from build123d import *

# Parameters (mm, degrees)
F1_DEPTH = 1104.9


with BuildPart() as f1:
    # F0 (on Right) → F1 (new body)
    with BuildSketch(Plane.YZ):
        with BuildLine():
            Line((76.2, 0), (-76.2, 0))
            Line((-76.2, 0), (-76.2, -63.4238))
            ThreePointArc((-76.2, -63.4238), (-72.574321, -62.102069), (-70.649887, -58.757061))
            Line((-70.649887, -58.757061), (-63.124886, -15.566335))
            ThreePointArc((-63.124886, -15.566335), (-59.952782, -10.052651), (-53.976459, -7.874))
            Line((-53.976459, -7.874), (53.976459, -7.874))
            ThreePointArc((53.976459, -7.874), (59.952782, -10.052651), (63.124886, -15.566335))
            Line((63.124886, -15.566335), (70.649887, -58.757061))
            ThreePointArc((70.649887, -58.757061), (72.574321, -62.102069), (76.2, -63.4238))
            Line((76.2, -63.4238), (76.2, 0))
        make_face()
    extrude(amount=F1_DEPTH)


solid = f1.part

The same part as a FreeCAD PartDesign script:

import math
import FreeCAD as App
import Part
import Sketcher

V = App.Vector
Q = App.Units.Quantity

doc = App.newDocument("Part")
body = doc.addObject("PartDesign::Body", "Body")

# Sketch on YZ plane
sketch1 = body.newObject("Sketcher::SketchObject", "Sketch")
sketch1.AttachmentSupport = (doc.getObject("YZ_Plane"), [""])
sketch1.MapMode = "FlatFace"
sketch1.addGeometry(Part.LineSegment(V(76, 0, 0), V(-76, 0, 0)), False)
sketch1.addGeometry(Part.LineSegment(V(-76, 0, 0), V(-76, -63, 0)), False)
sketch1.addGeometry(Part.ArcOfCircle(Part.Circle(V(-76, -58, 0), V(0, 0, 1), 6), math.radians(-90), math.radians(-10)), False)
sketch1.addGeometry(Part.LineSegment(V(-71, -59, 0), V(-63, -16, 0)), False)
sketch1.addGeometry(Part.ArcOfCircle(Part.Circle(V(-54, -17, 0), V(0, 0, 1), 9), math.radians(90), math.radians(170)), False)
sketch1.addGeometry(Part.LineSegment(V(-54, -8, 0), V(54, -8, 0)), False)
sketch1.addGeometry(Part.ArcOfCircle(Part.Circle(V(54, -17, 0), V(0, 0, 1), 9), math.radians(10), math.radians(90)), False)
sketch1.addGeometry(Part.LineSegment(V(63, -16, 0), V(71, -59, 0)), False)
sketch1.addGeometry(Part.ArcOfCircle(Part.Circle(V(76, -58, 0), V(0, 0, 1), 6), math.radians(-170), math.radians(-90)), False)
sketch1.addGeometry(Part.LineSegment(V(76, -63, 0), V(76, 0, 0)), False)
sketch1.addConstraint(Sketcher.Constraint("Coincident", 0, 2, 1, 1))
sketch1.addConstraint(Sketcher.Constraint("Coincident", 1, 2, 2, 1))
sketch1.addConstraint(Sketcher.Constraint("Tangent", 2, 2, 3, 1))
sketch1.addConstraint(Sketcher.Constraint("Tangent", 3, 2, 4, 2))
sketch1.addConstraint(Sketcher.Constraint("Tangent", 4, 1, 5, 1))
sketch1.addConstraint(Sketcher.Constraint("Tangent", 5, 2, 6, 2))
sketch1.addConstraint(Sketcher.Constraint("Tangent", 6, 1, 7, 1))
sketch1.addConstraint(Sketcher.Constraint("Tangent", 7, 2, 8, 1))
sketch1.addConstraint(Sketcher.Constraint("Coincident", 8, 2, 9, 1))
sketch1.addConstraint(Sketcher.Constraint("Coincident", 9, 2, 0, 1))
sketch1.addConstraint(Sketcher.Constraint("Horizontal", 0))
sketch1.addConstraint(Sketcher.Constraint("Vertical", 1))
sketch1.addConstraint(Sketcher.Constraint("Horizontal", 5))
sketch1.addConstraint(Sketcher.Constraint("Vertical", 9))
sketch1.addConstraint(Sketcher.Constraint("Equal", 4, 6))
sketch1.addConstraint(Sketcher.Constraint("Equal", 2, 8))
sketch1.addConstraint(Sketcher.Constraint("Symmetric", 0, 2, 9, 2, -1, 1))
sketch1.addConstraint(Sketcher.Constraint("Symmetric", 2, 3, 8, 3, -2))
sketch1.addConstraint(Sketcher.Constraint("Horizontal", 3, 2, 6, 1))
sketch1.addConstraint(Sketcher.Constraint("Vertical", 2, 3, 0, 2))
sketch1.addConstraint(Sketcher.Constraint("DistanceX", 0, 2, 0, 1, Q("6 in")))
sketch1.addConstraint(Sketcher.Constraint("Radius", 2, Q("0.2218001 in")))
sketch1.addConstraint(Sketcher.Constraint("Radius", 4, Q("0.3656 in")))
sketch1.addConstraint(Sketcher.Constraint("DistanceY", 1, 2, 1, 1, Q("2.497 in")))
sketch1.addConstraint(Sketcher.Constraint("DistanceY", 4, 1, -1, 1, Q("0.31 in")))
sketch1.addConstraint(Sketcher.Constraint("DistanceX", 2, 2, 3, 2, Q("7.525001 mm")))
pad1 = body.newObject("PartDesign::Pad", "Pad")
pad1.Profile = sketch1
pad1.Length = Q("43.5 in")

doc.recompute()
